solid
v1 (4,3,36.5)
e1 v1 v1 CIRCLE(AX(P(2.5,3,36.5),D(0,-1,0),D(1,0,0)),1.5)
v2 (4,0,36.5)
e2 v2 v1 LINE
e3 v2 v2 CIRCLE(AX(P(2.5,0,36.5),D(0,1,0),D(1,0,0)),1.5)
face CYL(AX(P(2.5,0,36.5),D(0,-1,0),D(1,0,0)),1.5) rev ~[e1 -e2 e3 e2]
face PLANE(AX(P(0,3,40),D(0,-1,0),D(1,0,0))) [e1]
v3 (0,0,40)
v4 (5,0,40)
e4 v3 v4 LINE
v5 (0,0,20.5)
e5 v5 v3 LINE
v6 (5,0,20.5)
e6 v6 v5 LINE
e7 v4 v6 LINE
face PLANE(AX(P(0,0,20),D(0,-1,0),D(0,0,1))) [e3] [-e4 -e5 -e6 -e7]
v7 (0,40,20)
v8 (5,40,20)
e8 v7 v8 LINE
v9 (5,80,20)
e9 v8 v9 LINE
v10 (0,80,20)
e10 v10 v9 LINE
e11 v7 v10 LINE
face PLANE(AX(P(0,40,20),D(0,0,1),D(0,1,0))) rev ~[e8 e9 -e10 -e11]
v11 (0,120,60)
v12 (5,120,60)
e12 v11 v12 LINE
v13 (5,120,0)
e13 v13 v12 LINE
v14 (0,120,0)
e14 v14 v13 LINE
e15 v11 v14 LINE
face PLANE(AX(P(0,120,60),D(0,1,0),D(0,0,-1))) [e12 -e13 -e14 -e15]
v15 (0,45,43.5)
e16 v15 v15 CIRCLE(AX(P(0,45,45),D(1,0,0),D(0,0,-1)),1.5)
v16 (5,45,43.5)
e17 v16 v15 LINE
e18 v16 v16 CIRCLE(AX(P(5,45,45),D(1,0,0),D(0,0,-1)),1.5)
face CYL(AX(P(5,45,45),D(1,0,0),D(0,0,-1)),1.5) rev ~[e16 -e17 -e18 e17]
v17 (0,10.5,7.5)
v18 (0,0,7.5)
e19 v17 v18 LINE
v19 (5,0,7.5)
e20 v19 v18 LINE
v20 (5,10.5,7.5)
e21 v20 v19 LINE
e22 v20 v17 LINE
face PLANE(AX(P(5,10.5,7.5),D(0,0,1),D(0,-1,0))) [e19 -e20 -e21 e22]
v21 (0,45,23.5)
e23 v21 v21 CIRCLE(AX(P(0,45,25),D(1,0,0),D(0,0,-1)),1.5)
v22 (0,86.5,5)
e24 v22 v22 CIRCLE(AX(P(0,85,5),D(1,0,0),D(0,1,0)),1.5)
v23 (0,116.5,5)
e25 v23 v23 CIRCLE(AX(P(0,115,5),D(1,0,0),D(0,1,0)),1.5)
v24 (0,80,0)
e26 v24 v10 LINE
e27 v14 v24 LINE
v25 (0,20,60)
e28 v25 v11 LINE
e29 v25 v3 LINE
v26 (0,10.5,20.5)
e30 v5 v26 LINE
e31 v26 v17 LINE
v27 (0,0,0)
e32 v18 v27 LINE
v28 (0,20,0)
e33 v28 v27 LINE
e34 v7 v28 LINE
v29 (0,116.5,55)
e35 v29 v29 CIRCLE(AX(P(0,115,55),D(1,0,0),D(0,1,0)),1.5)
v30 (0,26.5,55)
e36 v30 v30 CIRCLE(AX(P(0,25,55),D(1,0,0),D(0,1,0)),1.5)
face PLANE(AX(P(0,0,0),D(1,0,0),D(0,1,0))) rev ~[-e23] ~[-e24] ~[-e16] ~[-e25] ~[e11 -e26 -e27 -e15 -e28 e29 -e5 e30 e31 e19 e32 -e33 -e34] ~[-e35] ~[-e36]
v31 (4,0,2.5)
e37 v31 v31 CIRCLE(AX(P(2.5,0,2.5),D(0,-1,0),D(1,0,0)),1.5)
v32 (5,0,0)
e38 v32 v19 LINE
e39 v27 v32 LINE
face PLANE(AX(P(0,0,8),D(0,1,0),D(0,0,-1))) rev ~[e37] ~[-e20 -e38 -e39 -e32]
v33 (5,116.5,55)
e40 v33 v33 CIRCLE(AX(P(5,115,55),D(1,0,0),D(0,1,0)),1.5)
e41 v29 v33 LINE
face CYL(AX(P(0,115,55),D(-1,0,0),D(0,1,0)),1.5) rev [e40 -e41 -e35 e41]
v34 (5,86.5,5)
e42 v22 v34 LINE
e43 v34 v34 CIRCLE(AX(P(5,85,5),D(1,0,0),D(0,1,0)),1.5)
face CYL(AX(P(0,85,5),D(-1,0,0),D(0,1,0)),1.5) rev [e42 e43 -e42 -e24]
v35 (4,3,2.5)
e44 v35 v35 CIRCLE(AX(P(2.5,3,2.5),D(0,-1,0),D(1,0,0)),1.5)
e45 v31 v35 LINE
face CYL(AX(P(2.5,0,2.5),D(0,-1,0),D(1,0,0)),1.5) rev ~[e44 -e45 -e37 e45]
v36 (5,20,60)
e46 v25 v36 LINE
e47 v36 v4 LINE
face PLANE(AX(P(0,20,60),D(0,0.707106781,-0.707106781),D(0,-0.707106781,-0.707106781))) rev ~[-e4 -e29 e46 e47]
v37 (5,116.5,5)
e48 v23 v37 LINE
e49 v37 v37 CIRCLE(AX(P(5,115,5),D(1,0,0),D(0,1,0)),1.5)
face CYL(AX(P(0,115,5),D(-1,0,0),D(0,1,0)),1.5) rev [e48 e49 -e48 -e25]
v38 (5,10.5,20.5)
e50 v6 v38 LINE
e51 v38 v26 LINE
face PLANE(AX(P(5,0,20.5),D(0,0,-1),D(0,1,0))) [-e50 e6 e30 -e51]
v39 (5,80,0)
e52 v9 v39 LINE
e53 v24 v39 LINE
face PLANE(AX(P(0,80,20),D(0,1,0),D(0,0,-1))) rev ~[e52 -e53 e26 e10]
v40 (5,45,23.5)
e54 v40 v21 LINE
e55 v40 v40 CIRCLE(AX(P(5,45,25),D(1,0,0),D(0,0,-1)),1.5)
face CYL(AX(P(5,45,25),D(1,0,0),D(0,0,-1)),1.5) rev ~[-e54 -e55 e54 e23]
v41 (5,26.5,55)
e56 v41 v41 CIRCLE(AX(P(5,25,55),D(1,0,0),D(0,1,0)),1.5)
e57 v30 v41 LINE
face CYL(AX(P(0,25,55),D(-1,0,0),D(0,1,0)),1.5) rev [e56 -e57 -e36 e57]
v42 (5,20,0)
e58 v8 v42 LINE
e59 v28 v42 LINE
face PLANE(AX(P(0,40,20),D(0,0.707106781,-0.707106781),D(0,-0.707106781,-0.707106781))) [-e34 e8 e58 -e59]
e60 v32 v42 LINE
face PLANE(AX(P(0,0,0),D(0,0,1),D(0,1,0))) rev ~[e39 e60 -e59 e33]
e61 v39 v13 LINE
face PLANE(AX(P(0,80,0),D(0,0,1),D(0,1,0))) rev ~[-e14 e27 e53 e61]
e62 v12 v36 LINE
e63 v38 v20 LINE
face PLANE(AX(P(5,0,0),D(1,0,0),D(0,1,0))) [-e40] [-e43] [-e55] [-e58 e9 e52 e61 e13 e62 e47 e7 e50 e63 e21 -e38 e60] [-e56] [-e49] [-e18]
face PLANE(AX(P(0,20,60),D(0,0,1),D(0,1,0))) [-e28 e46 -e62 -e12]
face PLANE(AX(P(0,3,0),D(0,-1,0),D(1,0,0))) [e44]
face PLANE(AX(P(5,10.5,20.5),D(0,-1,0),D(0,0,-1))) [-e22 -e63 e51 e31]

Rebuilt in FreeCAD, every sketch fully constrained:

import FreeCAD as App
import Part
import Sketcher
from FreeCAD import Vector


def add_polygon(sketch, points):
    """Adds a closed chain of lines whose ends are joined by coincident constraints."""
    first, n = sketch.GeometryCount, len(points)
    for a, b in zip(points, points[1:] + points[:1]):
        sketch.addGeometry(Part.LineSegment(App.Vector(*a, 0), App.Vector(*b, 0)), False)
    for i in range(n):
        sketch.addConstraint(Sketcher.Constraint("Coincident", first + i, 2, first + (i + 1) % n, 1))

doc = App.newDocument("Part")
body = doc.addObject("PartDesign::Body", "Body")

sketch1 = body.newObject("Sketcher::SketchObject", "Sketch")
sketch1.AttachmentSupport = (doc.getObject("YZ_Plane"), [""])
sketch1.MapMode = "FlatFace"
add_polygon(sketch1, [(10, 8), (0, 8), (0, 0), (20, 0), (40, 20), (80, 20), (80, 0), (120, 0), (120, 60), (20, 60), (0, 40), (0, 20), (10, 20)])
sketch1.addGeometry(Part.Circle(Vector(5, 5, 0), Vector(0, 0, 1), 1.5), False)
sketch1.addGeometry(Part.Circle(Vector(85, 5, 0), Vector(0, 0, 1), 1.5), False)
sketch1.addGeometry(Part.Circle(Vector(115, 5, 0), Vector(0, 0, 1), 1.5), False)
sketch1.addGeometry(Part.Circle(Vector(5, 35, 0), Vector(0, 0, 1), 1.5), False)
sketch1.addGeometry(Part.Circle(Vector(25, 55, 0), Vector(0, 0, 1), 1.5), False)
sketch1.addGeometry(Part.Circle(Vector(115, 55, 0), Vector(0, 0, 1), 1.5), False)
sketch1.addConstraint(Sketcher.Constraint("Horizontal", 0))
sketch1.addConstraint(Sketcher.Constraint("Vertical", 1))
sketch1.addConstraint(Sketcher.Constraint("Horizontal", 2))
sketch1.addConstraint(Sketcher.Constraint("Horizontal", 4))
sketch1.addConstraint(Sketcher.Constraint("Vertical", 5))
sketch1.addConstraint(Sketcher.Constraint("Horizontal", 6))
sketch1.addConstraint(Sketcher.Constraint("Vertical", 7))
sketch1.addConstraint(Sketcher.Constraint("Horizontal", 8))
sketch1.addConstraint(Sketcher.Constraint("Vertical", 10))
sketch1.addConstraint(Sketcher.Constraint("Horizontal", 11))
sketch1.addConstraint(Sketcher.Constraint("Vertical", 12))
sketch1.addConstraint(Sketcher.Constraint("Coincident", 1, 2, -1, 1))
sketch1.addConstraint(Sketcher.Constraint("Equal", 13, 14))
sketch1.addConstraint(Sketcher.Constraint("Equal", 14, 15))
sketch1.addConstraint(Sketcher.Constraint("Equal", 15, 16))
sketch1.addConstraint(Sketcher.Constraint("Equal", 16, 17))
sketch1.addConstraint(Sketcher.Constraint("Equal", 17, 18))
sketch1.addConstraint(Sketcher.Constraint("PointOnObject", 5, 2, -1))
sketch1.addConstraint(Sketcher.Constraint("PointOnObject", 9, 2, -2))
sketch1.addConstraint(Sketcher.Constraint("Parallel", 3, 9))
sketch1.addConstraint(Sketcher.Constraint("Horizontal", 13, 3, 14, 3))
sketch1.addConstraint(Sketcher.Constraint("Horizontal", 14, 3, 15, 3))
sketch1.addConstraint(Sketcher.Constraint("Horizontal", 17, 3, 18, 3))
sketch1.addConstraint(Sketcher.Constraint("Horizontal", 4, 2, 10, 2))
sketch1.addConstraint(Sketcher.Constraint("Vertical", 13, 3, 16, 3))
sketch1.addConstraint(Sketcher.Constraint("Vertical", 15, 3, 18, 3))
sketch1.addConstraint(Sketcher.Constraint("Vertical", 2, 2, 8, 2))
sketch1.addConstraint(Sketcher.Constraint("Equal", 4, 6))
sketch1.addConstraint(Sketcher.Constraint("Equal", 2, 5))
sketch1.addConstraint(Sketcher.Constraint("Equal", 5, 10))
sketch1.addConstraint(Sketcher.Constraint("Equal", 3, 9))
sketch1.addConstraint(Sketcher.Constraint("Diameter", 13, 3.0))
sketch1.addConstraint(Sketcher.Constraint("DistanceX", 0, 2, 0, 1, 10.0))
sketch1.addConstraint(Sketcher.Constraint("DistanceX", 2, 1, 2, 2, 20.0))
sketch1.addConstraint(Sketcher.Constraint("DistanceX", 4, 1, 4, 2, 40.0))
sketch1.addConstraint(Sketcher.Constraint("DistanceY", 1, 2, 1, 1, 8.0))
sketch1.addConstraint(Sketcher.Constraint("DistanceX", -1, 1, 13, 3, 5.0))
sketch1.addConstraint(Sketcher.Constraint("DistanceY", -1, 1, 13, 3, 5.0))
sketch1.addConstraint(Sketcher.Constraint("DistanceX", 16, 3, 17, 3, 20.0))
sketch1.addConstraint(Sketcher.Constraint("DistanceY", 16, 3, 17, 3, 20.0))
sketch1.addConstraint(Sketcher.Constraint("DistanceX", 17, 3, 14, 3, 60.0))
sketch1.addConstraint(Sketcher.Constraint("DistanceX", 15, 3, 6, 2, 5.0))
sketch1.addConstraint(Sketcher.Constraint("DistanceY", 18, 3, 7, 2, 5.0))
pad1 = body.newObject("PartDesign::Pad", "Pad")
pad1.Profile = sketch1
pad1.Length = 5

sketch2 = body.newObject("Sketcher::SketchObject", "Sketch001")
sketch2.AttachmentSupport = (doc.getObject("YZ_Plane"), [""])
sketch2.MapMode = "FlatFace"
sketch2.AttachmentOffset = App.Placement(Vector(0, 0, 5), App.Rotation())
sketch2.addGeometry(Part.Circle(Vector(45, 25, 0), Vector(0, 0, 1), 1.5), False)
sketch2.addGeometry(Part.Circle(Vector(45, 45, 0), Vector(0, 0, 1), 1.5), False)
sketch2.addConstraint(Sketcher.Constraint("Equal", 0, 1))
sketch2.addConstraint(Sketcher.Constraint("Vertical", 0, 3, 1, 3))
sketch2.addConstraint(Sketcher.Constraint("Diameter", 0, 3.0))
sketch2.addConstraint(Sketcher.Constraint("DistanceY", 0, 3, 1, 3, 20.0))
sketch2.addConstraint(Sketcher.Constraint("DistanceX", -1, 1, 0, 3, 45.0))
sketch2.addConstraint(Sketcher.Constraint("DistanceY", -1, 1, 0, 3, 25.0))
pocket1 = body.newObject("PartDesign::Pocket", "Pocket")
pocket1.Profile = sketch2
pocket1.Length = 5

sketch3 = body.newObject("Sketcher::SketchObject", "Sketch002")
sketch3.AttachmentSupport = (doc.getObject("XZ_Plane"), [""])
sketch3.MapMode = "FlatFace"
sketch3.addGeometry(Part.Circle(Vector(2.5, 2.5, 0), Vector(0, 0, 1), 1.5), False)
sketch3.addConstraint(Sketcher.Constraint("Diameter", 0, 3.0))
sketch3.addConstraint(Sketcher.Constraint("DistanceX", -1, 1, 0, 3, 2.5))
sketch3.addConstraint(Sketcher.Constraint("DistanceY", -1, 1, 0, 3, 2.5))
pocket2 = body.newObject("PartDesign::Pocket", "Pocket001")
pocket2.Profile = sketch3
pocket2.Length = 3

sketch4 = body.newObject("Sketcher::SketchObject", "Sketch003")
sketch4.AttachmentSupport = (doc.getObject("YZ_Plane"), [""])
sketch4.MapMode = "FlatFace"
sketch4.AttachmentOffset = App.Placement(Vector(0, 0, 5), App.Rotation())
add_polygon(sketch4, [(0, 20), (0, 8), (10, 8), (10, 20)])
sketch4.addConstraint(Sketcher.Constraint("Vertical", 0))
sketch4.addConstraint(Sketcher.Constraint("Horizontal", 1))
sketch4.addConstraint(Sketcher.Constraint("Vertical", 2))
sketch4.addConstraint(Sketcher.Constraint("Horizontal", 3))
sketch4.addConstraint(Sketcher.Constraint("PointOnObject", 0, 2, -2))
sketch4.addConstraint(Sketcher.Constraint("DistanceY", 0, 2, 0, 1, 13.0))
sketch4.addConstraint(Sketcher.Constraint("DistanceX", 1, 1, 1, 2, 10.5))
sketch4.addConstraint(Sketcher.Constraint("DistanceY", -1, 1, 0, 2, 7.5))
pocket3 = body.newObject("PartDesign::Pocket", "Pocket002")
pocket3.Profile = sketch4
pocket3.Length = 10

sketch5 = body.newObject("Sketcher::SketchObject", "Sketch004")
sketch5.AttachmentSupport = (doc.getObject("XZ_Plane"), [""])
sketch5.MapMode = "FlatFace"
sketch5.addGeometry(Part.Circle(Vector(2.5, 36.5, 0), Vector(0, 0, 1), 1.5), False)
sketch5.addConstraint(Sketcher.Constraint("Diameter", 0, 3.0))
sketch5.addConstraint(Sketcher.Constraint("DistanceX", -1, 1, 0, 3, 2.5))
sketch5.addConstraint(Sketcher.Constraint("DistanceY", -1, 1, 0, 3, 36.5))
pocket4 = body.newObject("PartDesign::Pocket", "Pocket003")
pocket4.Profile = sketch5
pocket4.Length = 3

sketch6 = body.newObject("Sketcher::SketchObject", "Sketch005")
sketch6.AttachmentSupport = (doc.getObject("YZ_Plane"), [""])
sketch6.MapMode = "FlatFace"
sketch6.AttachmentOffset = App.Placement(Vector(0, 0, 5), App.Rotation())
sketch6.addGeometry(Part.Circle(Vector(5, 35, 0), Vector(0, 0, 1), 1.5), False)
sketch6.addGeometry(Part.Circle(Vector(5, 5, 0), Vector(0, 0, 1), 1.5), False)
sketch6.addConstraint(Sketcher.Constraint("Equal", 0, 1))
sketch6.addConstraint(Sketcher.Constraint("Vertical", 0, 3, 1, 3))
sketch6.addConstraint(Sketcher.Constraint("Diameter", 0, 3.0))
sketch6.addConstraint(Sketcher.Constraint("DistanceX", -1, 1, 0, 3, 5.0))
sketch6.addConstraint(Sketcher.Constraint("DistanceY", -1, 1, 0, 3, 35.0))
sketch6.addConstraint(Sketcher.Constraint("DistanceY", -1, 1, 1, 3, 5.0))
pad2 = body.newObject("PartDesign::Pad", "Pad001")
pad2.Profile = sketch6
pad2.Length = 5
pad2.Reversed = True

doc.recompute()
